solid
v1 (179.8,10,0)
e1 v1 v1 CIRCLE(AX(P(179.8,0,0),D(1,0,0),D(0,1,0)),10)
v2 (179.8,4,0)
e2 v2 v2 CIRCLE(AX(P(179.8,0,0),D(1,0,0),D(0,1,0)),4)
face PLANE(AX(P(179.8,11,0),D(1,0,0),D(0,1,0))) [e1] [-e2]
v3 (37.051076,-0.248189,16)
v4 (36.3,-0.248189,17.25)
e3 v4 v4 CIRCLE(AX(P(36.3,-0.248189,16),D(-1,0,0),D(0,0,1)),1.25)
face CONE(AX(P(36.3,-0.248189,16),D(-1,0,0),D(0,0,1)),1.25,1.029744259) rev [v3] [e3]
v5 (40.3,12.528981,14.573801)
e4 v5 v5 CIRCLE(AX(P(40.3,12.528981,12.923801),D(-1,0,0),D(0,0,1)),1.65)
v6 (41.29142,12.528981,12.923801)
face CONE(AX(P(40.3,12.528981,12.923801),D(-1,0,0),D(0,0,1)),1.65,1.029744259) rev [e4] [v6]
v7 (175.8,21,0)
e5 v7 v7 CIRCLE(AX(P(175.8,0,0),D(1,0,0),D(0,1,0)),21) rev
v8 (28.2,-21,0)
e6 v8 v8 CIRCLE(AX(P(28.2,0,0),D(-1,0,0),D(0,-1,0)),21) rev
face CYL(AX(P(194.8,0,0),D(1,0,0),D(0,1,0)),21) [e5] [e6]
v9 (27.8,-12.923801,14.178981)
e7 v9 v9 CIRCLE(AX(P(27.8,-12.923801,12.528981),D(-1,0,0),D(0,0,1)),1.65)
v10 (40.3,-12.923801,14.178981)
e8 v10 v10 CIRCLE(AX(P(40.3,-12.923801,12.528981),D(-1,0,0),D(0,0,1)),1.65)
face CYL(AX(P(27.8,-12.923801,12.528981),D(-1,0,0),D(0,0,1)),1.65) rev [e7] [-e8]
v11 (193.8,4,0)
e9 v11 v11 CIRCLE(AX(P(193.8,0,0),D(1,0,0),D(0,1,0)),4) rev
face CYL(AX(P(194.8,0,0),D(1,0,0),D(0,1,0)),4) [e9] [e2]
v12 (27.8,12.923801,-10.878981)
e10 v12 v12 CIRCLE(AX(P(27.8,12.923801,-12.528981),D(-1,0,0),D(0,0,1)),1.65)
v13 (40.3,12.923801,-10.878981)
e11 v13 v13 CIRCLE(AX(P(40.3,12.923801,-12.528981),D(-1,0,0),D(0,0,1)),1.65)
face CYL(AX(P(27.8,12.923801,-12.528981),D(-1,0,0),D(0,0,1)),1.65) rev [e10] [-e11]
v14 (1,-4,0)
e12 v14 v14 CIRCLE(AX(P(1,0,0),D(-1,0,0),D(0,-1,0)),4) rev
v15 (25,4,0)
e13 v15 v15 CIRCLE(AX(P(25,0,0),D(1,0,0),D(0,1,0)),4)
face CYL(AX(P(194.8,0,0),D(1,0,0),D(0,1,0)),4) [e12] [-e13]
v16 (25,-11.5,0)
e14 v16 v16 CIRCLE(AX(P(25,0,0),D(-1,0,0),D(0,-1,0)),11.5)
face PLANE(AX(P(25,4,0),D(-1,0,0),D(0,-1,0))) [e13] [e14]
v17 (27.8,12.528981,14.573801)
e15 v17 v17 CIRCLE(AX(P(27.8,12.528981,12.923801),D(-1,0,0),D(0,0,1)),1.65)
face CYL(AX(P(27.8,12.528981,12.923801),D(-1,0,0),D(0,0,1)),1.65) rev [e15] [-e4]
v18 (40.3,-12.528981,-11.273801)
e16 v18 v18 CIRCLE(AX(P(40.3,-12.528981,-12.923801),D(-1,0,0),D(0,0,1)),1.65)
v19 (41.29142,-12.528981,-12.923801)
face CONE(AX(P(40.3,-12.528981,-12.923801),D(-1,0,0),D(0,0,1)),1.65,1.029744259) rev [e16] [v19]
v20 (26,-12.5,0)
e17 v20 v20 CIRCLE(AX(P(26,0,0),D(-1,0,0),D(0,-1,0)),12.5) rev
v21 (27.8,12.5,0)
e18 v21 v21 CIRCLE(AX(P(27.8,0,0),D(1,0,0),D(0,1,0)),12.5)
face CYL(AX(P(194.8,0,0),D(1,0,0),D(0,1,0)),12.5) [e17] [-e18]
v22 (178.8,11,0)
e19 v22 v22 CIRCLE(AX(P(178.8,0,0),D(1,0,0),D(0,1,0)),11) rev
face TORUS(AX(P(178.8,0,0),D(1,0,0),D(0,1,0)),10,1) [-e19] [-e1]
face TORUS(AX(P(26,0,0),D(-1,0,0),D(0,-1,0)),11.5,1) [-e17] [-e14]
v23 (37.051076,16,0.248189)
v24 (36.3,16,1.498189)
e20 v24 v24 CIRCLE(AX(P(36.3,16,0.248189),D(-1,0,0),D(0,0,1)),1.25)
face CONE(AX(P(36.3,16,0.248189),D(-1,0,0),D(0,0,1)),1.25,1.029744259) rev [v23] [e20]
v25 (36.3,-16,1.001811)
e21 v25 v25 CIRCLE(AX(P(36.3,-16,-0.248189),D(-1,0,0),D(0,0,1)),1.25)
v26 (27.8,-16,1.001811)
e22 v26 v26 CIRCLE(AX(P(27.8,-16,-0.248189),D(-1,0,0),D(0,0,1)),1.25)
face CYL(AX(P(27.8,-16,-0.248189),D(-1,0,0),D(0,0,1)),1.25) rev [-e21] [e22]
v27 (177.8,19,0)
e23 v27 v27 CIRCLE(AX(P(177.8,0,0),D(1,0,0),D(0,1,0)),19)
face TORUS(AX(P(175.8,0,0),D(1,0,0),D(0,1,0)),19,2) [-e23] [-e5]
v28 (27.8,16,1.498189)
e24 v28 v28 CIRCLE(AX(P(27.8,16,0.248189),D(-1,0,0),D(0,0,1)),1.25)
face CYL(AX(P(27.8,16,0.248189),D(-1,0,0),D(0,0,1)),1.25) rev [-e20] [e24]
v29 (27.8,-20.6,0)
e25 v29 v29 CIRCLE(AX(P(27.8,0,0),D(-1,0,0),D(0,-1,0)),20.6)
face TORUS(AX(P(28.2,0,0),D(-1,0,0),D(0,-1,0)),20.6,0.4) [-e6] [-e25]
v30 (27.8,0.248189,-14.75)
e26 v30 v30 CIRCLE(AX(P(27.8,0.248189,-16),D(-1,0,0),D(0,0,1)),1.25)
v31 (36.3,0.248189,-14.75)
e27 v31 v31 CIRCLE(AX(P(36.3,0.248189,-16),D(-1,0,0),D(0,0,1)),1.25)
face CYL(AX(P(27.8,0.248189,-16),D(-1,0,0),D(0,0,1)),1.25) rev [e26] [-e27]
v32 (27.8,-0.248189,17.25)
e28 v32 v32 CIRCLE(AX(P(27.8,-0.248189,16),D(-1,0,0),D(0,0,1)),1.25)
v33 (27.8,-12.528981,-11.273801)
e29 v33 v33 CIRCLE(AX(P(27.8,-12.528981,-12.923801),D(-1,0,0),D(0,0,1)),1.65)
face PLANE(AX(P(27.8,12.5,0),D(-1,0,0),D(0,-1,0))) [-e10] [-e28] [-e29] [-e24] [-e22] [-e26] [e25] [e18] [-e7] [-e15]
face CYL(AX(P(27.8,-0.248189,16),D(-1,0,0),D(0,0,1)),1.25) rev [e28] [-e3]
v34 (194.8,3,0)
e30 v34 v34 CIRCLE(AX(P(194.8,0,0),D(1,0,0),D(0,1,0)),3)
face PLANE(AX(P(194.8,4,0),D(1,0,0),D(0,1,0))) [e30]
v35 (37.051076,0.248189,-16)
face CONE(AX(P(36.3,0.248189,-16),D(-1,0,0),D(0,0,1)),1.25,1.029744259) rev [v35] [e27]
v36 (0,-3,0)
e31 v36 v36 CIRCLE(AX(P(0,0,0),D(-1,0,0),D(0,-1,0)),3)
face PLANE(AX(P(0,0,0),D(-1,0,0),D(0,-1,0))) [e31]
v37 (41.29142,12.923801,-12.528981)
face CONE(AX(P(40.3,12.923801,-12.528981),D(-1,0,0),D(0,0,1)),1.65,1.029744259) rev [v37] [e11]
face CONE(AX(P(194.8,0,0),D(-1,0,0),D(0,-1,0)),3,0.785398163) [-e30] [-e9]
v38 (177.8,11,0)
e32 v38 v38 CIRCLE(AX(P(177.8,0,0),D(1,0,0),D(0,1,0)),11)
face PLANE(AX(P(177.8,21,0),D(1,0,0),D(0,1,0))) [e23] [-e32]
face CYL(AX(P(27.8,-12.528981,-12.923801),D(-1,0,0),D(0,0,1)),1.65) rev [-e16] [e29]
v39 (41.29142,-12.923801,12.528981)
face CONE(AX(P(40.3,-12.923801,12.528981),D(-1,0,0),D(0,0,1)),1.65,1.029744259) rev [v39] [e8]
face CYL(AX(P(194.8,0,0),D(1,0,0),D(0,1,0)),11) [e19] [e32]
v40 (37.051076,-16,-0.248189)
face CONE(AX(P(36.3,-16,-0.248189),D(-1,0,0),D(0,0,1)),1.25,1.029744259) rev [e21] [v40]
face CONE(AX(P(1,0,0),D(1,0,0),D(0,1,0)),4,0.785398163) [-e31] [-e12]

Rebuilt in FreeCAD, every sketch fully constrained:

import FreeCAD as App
import Part
import Sketcher
Q = App.Units.Quantity


def edges_at(feature, points):
    """Names of the edges that pass closest to the given points."""
    edges = feature.Shape.Edges
    near = lambda p: min(range(len(edges)), key=lambda i: edges[i].distToShape(Part.Vertex(*p))[0])
    return sorted({f"Edge{near(p) + 1}" for p in points})


def add_polygon(sketch, points):
    """Adds a closed chain of lines whose ends are joined by coincident constraints."""
    first, n = sketch.GeometryCount, len(points)
    for a, b in zip(points, points[1:] + points[:1]):
        sketch.addGeometry(Part.LineSegment(App.Vector(*a, 0), App.Vector(*b, 0)), False)
    for i in range(n):
        sketch.addConstraint(Sketcher.Constraint("Coincident", first + i, 2, first + (i + 1) % n, 1))

doc = App.newDocument("Part")
params = doc.addObject("Spreadsheet::Sheet", "Params")
for row, (alias, value) in enumerate([
    ("sketch1_width", "15 mm"),
    ("sketch1_width2", "2 mm"),
    ("sketch1_width3", "150 mm"),
    ("sketch1_width4", "25 mm"),
    ("sketch1_height", "4 mm"),
    ("revolution_angle", "360 deg"),
    ("fillet_radius", "2 mm"),
    ("fillet2_radius", "1 mm"),
    ("fillet3_radius", "1 mm"),
    ("chamfer_size", "1 mm"),
    ("chamfer2_size", "1 mm"),
    ("sketch2_width", "8.5 mm"),
    ("sketch2_height", "1.25 mm"),
    ("groove_angle", "360 deg"),
    ("fillet4_radius", "0.4 mm"),
    ("sketch3_width", "12.5 mm"),
    ("sketch3_height", "1.65 mm"),
    ("groove2_angle", "360 deg"),
], start=1):
    params.set(f"A{row}", alias)
    params.set(f"B{row}", "=" + value)
    params.setAlias(f"B{row}", alias)

body = doc.addObject("PartDesign::Body", "Body")

# Sketch on XY plane
sketch1 = doc.addObject("Sketcher::SketchObject", "Sketch")
body.addObject(sketch1)
sketch1.AttachmentSupport = (doc.XY_Plane, [""])
sketch1.MapMode = "FlatFace"
add_polygon(sketch1, [(0, 4), (0, 0), (194.8, 0), (194.8, 4), (179.8, 4), (179.8, 11), (177.8, 11), (177.8, 21), (27.8, 21), (27.8, 12.5), (25, 12.5), (25, 4)])  # lines 0-11
sketch1.addConstraint([
    Sketcher.Constraint("Vertical", 0),
    Sketcher.Constraint("Horizontal", 1),
    Sketcher.Constraint("Vertical", 2),
    Sketcher.Constraint("Horizontal", 3),
    Sketcher.Constraint("Vertical", 4),
    Sketcher.Constraint("Horizontal", 5),
    Sketcher.Constraint("Vertical", 6),
    Sketcher.Constraint("Horizontal", 7),
    Sketcher.Constraint("Vertical", 8),
    Sketcher.Constraint("Horizontal", 9),
    Sketcher.Constraint("Vertical", 10),
    Sketcher.Constraint("Horizontal", 11),
    Sketcher.Constraint("Coincident", 0, 2, -1, 1),
    Sketcher.Constraint("Horizontal", 3, 2, 10, 2),
    Sketcher.Constraint("Equal", 8, 10),
    Sketcher.Constraint("DistanceX", 3, 2, 3, 1, Q("15 mm")),
    Sketcher.Constraint("DistanceX", 5, 2, 5, 1, Q("2 mm")),
    Sketcher.Constraint("DistanceX", 7, 2, 7, 1, Q("150 mm")),
    Sketcher.Constraint("DistanceX", 11, 2, 11, 1, Q("25 mm")),
    Sketcher.Constraint("DistanceY", 0, 2, 0, 1, Q("4 mm")),
    Sketcher.Constraint("DistanceY", 4, 1, 4, 2, Q("7 mm")),
    Sketcher.Constraint("DistanceY", 6, 1, 6, 2, Q("10 mm")),
    Sketcher.Constraint("DistanceX", 1, 1, 1, 2, Q("194.8 mm")),
])
sketch1.setExpression("Constraints[27]", "Params.sketch1_width")
sketch1.setExpression("Constraints[28]", "Params.sketch1_width2")
sketch1.setExpression("Constraints[29]", "Params.sketch1_width3")
sketch1.setExpression("Constraints[30]", "Params.sketch1_width4")
sketch1.setExpression("Constraints[31]", "Params.sketch1_height")
revolution = doc.addObject("PartDesign::Revolution", "Revolution")
body.addObject(revolution)
revolution.Profile = sketch1
revolution.ReferenceAxis = (sketch1, ["H_Axis"])
revolution.setExpression("Angle", "Params.revolution_angle")
doc.recompute()

fillet = doc.addObject("PartDesign::Fillet", "Fillet")
body.addObject(fillet)
fillet.Base = (revolution, edges_at(revolution, [(177.8, -21, 0)]))
fillet.setExpression("Radius", "Params.fillet_radius")
doc.recompute()

fillet2 = doc.addObject("PartDesign::Fillet", "Fillet001")
body.addObject(fillet2)
fillet2.Base = (fillet, edges_at(fillet, [(25, -12.5, 0)]))
fillet2.setExpression("Radius", "Params.fillet2_radius")
doc.recompute()

fillet3 = doc.addObject("PartDesign::Fillet", "Fillet002")
body.addObject(fillet3)
fillet3.Base = (fillet2, edges_at(fillet2, [(179.8, -11, 0)]))
fillet3.setExpression("Radius", "Params.fillet3_radius")
doc.recompute()

chamfer = doc.addObject("PartDesign::Chamfer", "Chamfer")
body.addObject(chamfer)
chamfer.Base = (fillet3, edges_at(fillet3, [(0, -4, 0)]))
chamfer.setExpression("Size", "Params.chamfer_size")
doc.recompute()

chamfer2 = doc.addObject("PartDesign::Chamfer", "Chamfer001")
body.addObject(chamfer2)
chamfer2.Base = (chamfer, edges_at(chamfer, [(194.8, -4, 0)]))
chamfer2.setExpression("Size", "Params.chamfer2_size")

# Sketch on XZ plane
sketch2 = doc.addObject("Sketcher::SketchObject", "Sketch001")
body.addObject(sketch2)
sketch2.AttachmentSupport = (doc.XZ_Plane, [""])
sketch2.MapMode = "FlatFace"
sketch2.AttachmentOffset = App.Placement(App.Vector(0, 0, 0.248189), App.Rotation())
add_polygon(sketch2, [(37.1, 16), (27.8, 16), (27.8, 17.2), (36.3, 17.2)])  # lines 0-3
sketch2.addGeometry(Part.LineSegment(App.Vector(27.8, 16, 0), App.Vector(37.1, 16, 0)), True)  # axis
sketch2.addConstraint([
    Sketcher.Constraint("Horizontal", 0),
    Sketcher.Constraint("Vertical", 1),
    Sketcher.Constraint("Horizontal", 2),
    Sketcher.Constraint("Horizontal", 4),
    Sketcher.Constraint("Coincident", 4, 1, 0, 2),
    Sketcher.Constraint("Equal", 0, 4),
    Sketcher.Constraint("Angle", 3, Q("-59 deg")),
    Sketcher.Constraint("DistanceX", 2, 1, 2, 2, Q("8.5 mm")),
    Sketcher.Constraint("DistanceY", -1, 1, 0, 2, Q("16 mm")),
    Sketcher.Constraint("DistanceY", 1, 1, 1, 2, Q("1.25 mm")),
    Sketcher.Constraint("DistanceX", -1, 1, 0, 2, Q("27.8 mm")),
])
sketch2.setExpression("Constraints[11]", "Params.sketch2_width")
sketch2.setExpression("Constraints[13]", "Params.sketch2_height")
groove = doc.addObject("PartDesign::Groove", "Groove")
body.addObject(groove)
groove.Profile = sketch2
groove.ReferenceAxis = (sketch2, ["Axis0"])
groove.setExpression("Angle", "Params.groove_angle")
doc.recompute()

polarpattern = doc.addObject("PartDesign::PolarPattern", "PolarPattern")
body.addObject(polarpattern)
polarpattern.Originals = [groove]
polarpattern.Axis = (doc.X_Axis, [""])
polarpattern.Angle = 360
polarpattern.Occurrences = 4
body.Tip = polarpattern
doc.recompute()

fillet4 = doc.addObject("PartDesign::Fillet", "Fillet003")
body.addObject(fillet4)
fillet4.Base = (polarpattern, edges_at(polarpattern, [(27.8, -21, 0)]))
fillet4.setExpression("Radius", "Params.fillet4_radius")

# Sketch on XZ plane
sketch3 = doc.addObject("Sketcher::SketchObject", "Sketch002")
body.addObject(sketch3)
sketch3.AttachmentSupport = (doc.XZ_Plane, [""])
sketch3.MapMode = "FlatFace"
sketch3.AttachmentOffset = App.Placement(App.Vector(0, 0, 12.923801), App.Rotation())
add_polygon(sketch3, [(41.3, 12.5), (27.8, 12.5), (27.8, 14.2), (40.3, 14.2)])  # lines 0-3
sketch3.addGeometry(Part.LineSegment(App.Vector(27.8, 12.5, 0), App.Vector(41.3, 12.5, 0)), True)  # axis
sketch3.addConstraint([
    Sketcher.Constraint("Horizontal", 0),
    Sketcher.Constraint("Vertical", 1),
    Sketcher.Constraint("Horizontal", 2),
    Sketcher.Constraint("Horizontal", 4),
    Sketcher.Constraint("Coincident", 4, 1, 0, 2),
    Sketcher.Constraint("Equal", 0, 4),
    Sketcher.Constraint("Angle", 3, Q("-59 deg")),
    Sketcher.Constraint("DistanceX", 2, 1, 2, 2, Q("12.5 mm")),
    Sketcher.Constraint("DistanceY", 1, 1, 1, 2, Q("1.65 mm")),
    Sketcher.Constraint("DistanceX", -1, 1, 0, 2, Q("27.8 mm")),
    Sketcher.Constraint("DistanceY", -1, 1, 0, 2, Q("12.528981 mm")),
])
sketch3.setExpression("Constraints[11]", "Params.sketch3_width")
sketch3.setExpression("Constraints[12]", "Params.sketch3_height")
groove2 = doc.addObject("PartDesign::Groove", "Groove001")
body.addObject(groove2)
groove2.Profile = sketch3
groove2.ReferenceAxis = (sketch3, ["Axis0"])
groove2.setExpression("Angle", "Params.groove2_angle")
doc.recompute()

polarpattern2 = doc.addObject("PartDesign::PolarPattern", "PolarPattern001")
body.addObject(polarpattern2)
polarpattern2.Originals = [groove2]
polarpattern2.Axis = (doc.X_Axis, [""])
polarpattern2.Angle = 360
polarpattern2.Occurrences = 4
body.Tip = polarpattern2

doc.recompute()
